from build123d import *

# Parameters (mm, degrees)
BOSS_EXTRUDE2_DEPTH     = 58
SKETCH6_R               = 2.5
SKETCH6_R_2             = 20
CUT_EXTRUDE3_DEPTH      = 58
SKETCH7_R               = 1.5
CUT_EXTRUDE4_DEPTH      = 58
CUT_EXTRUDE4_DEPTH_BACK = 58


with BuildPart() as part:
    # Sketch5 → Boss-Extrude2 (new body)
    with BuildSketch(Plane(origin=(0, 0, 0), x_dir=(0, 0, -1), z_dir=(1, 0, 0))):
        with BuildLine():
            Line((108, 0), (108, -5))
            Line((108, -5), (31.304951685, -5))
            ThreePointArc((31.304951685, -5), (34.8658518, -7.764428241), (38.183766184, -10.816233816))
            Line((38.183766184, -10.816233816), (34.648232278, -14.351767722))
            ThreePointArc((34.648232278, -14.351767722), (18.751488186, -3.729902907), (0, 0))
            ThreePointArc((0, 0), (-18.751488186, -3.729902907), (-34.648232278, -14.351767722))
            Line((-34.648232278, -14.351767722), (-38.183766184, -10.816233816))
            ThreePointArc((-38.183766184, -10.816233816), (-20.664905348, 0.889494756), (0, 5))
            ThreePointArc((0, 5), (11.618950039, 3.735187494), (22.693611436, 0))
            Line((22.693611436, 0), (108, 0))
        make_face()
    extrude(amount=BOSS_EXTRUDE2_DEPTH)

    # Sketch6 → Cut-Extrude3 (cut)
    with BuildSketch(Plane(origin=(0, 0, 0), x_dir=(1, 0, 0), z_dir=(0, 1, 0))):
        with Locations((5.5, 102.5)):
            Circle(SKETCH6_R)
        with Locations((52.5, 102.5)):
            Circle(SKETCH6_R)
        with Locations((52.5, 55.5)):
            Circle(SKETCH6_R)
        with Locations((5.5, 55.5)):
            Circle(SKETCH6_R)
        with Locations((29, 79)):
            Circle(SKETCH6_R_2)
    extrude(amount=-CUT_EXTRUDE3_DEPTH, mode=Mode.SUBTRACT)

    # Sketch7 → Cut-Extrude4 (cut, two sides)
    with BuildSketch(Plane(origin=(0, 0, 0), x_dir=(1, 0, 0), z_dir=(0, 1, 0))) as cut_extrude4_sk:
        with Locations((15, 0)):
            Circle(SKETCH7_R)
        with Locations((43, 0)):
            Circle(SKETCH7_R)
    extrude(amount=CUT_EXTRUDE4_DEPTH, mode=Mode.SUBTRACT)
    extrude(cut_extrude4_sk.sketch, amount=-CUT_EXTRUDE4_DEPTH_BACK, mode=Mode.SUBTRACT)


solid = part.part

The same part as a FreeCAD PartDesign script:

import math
import FreeCAD as App
import Part
import Sketcher
from FreeCAD import Vector

doc = App.newDocument("Part")
body = doc.addObject("PartDesign::Body", "Body")

# Sketch on YZ plane
sketch1 = body.newObject("Sketcher::SketchObject", "Sketch")
sketch1.AttachmentSupport = (doc.getObject("YZ_Plane"), [""])
sketch1.MapMode = "FlatFace"
sketch1.addGeometry([
    Part.LineSegment(Vector(-5, -108, 0), Vector(0, -108, 0)),  # 0
    Part.LineSegment(Vector(0, -108, 0), Vector(0, -23, 0)),  # 1
    Part.ArcOfCircle(Part.Circle(Vector(-49, 0, 0), Vector(0, 0, 1), 54), math.radians(-25), math.radians(0)),  # 2
    Part.ArcOfCircle(Part.Circle(Vector(-49, 0, 0), Vector(0, 0, 1), 54), math.radians(0), math.radians(45)),  # 3
    Part.LineSegment(Vector(-11, 38, 0), Vector(-14, 35, 0)),  # 4
    Part.ArcOfCircle(Part.Circle(Vector(-49, 0, 0), Vector(0, 0, 1), 49), math.radians(0), math.radians(45)),  # 5
    Part.ArcOfCircle(Part.Circle(Vector(-49, 0, 0), Vector(0, 0, 1), 49), math.radians(-45), math.radians(0)),  # 6
    Part.LineSegment(Vector(-14, -35, 0), Vector(-11, -38, 0)),  # 7
    Part.ArcOfCircle(Part.Circle(Vector(-49, 0, 0), Vector(0, 0, 1), 54), math.radians(-45), math.radians(-35.43)),  # 8
    Part.LineSegment(Vector(-5, -31, 0), Vector(-5, -108, 0)),  # 9
], False)
sketch1.addConstraint([
    Sketcher.Constraint("Coincident", 0, 2, 1, 1),
    Sketcher.Constraint("Coincident", 1, 2, 2, 1),
    Sketcher.Constraint("Tangent", 2, 2, 3, 1),
    Sketcher.Constraint("Coincident", 3, 2, 4, 1),
    Sketcher.Constraint("Coincident", 4, 2, 5, 2),
    Sketcher.Constraint("Tangent", 5, 1, 6, 2),
    Sketcher.Constraint("Coincident", 6, 1, 7, 1),
    Sketcher.Constraint("Coincident", 7, 2, 8, 1),
    Sketcher.Constraint("Coincident", 8, 2, 9, 1),
    Sketcher.Constraint("Coincident", 9, 2, 0, 1),
    Sketcher.Constraint("Horizontal", 0),
    Sketcher.Constraint("Vertical", 1),
    Sketcher.Constraint("Vertical", 9),
    Sketcher.Constraint("Coincident", 5, 1, -1, 1),
    Sketcher.Constraint("Coincident", 5, 3, 2, 3),
    Sketcher.Constraint("Coincident", 8, 3, 2, 3),
    Sketcher.Constraint("Equal", 2, 3),
    Sketcher.Constraint("Equal", 5, 6),
    Sketcher.Constraint("Equal", 3, 8),
    Sketcher.Constraint("Symmetric", 4, 2, 6, 1, -1),
    Sketcher.Constraint("PointOnObject", 0, 2, -2),
    Sketcher.Constraint("PointOnObject", 2, 2, -1),
    Sketcher.Constraint("Perpendicular", 4, 7),
    Sketcher.Constraint("Vertical", 3, 2, 7, 2),
    Sketcher.Constraint("Radius", 2, 54.0),
    Sketcher.Constraint("Radius", 5, 49.0),
    Sketcher.Constraint("DistanceX", 0, 1, 0, 2, 5.0),
    Sketcher.Constraint("DistanceY", 0, 2, -1, 1, 108.0),
    Sketcher.Constraint("DistanceY", 6, 1, 1, 2, 11.954621),
])
pad1 = body.newObject("PartDesign::Pad", "Pad")
pad1.Profile = sketch1
pad1.Length = 58

# Sketch on XZ plane
sketch2 = body.newObject("Sketcher::SketchObject", "Sketch001")
sketch2.AttachmentSupport = (doc.getObject("XZ_Plane"), [""])
sketch2.MapMode = "FlatFace"
sketch2.addGeometry([
    Part.Circle(Vector(5.5, -102.5, 0), Vector(0, 0, 1), 2.5),  # 0
    Part.Circle(Vector(52.5, -102.5, 0), Vector(0, 0, 1), 2.5),  # 1
    Part.Circle(Vector(52.5, -55.5, 0), Vector(0, 0, 1), 2.5),  # 2
    Part.Circle(Vector(5.5, -55.5, 0), Vector(0, 0, 1), 2.5),  # 3
    Part.Circle(Vector(29, -79, 0), Vector(0, 0, 1), 20),  # 4
], False)
sketch2.addConstraint([
    Sketcher.Constraint("Equal", 0, 1),
    Sketcher.Constraint("Equal", 1, 2),
    Sketcher.Constraint("Equal", 2, 3),
    Sketcher.Constraint("Horizontal", 0, 3, 1, 3),
    Sketcher.Constraint("Horizontal", 2, 3, 3, 3),
    Sketcher.Constraint("Vertical", 1, 3, 2, 3),
    Sketcher.Constraint("Vertical", 0, 3, 3, 3),
    Sketcher.Constraint("Diameter", 0, 5.0),
    Sketcher.Constraint("Diameter", 4, 40.0),
    Sketcher.Constraint("DistanceX", -1, 1, 4, 3, 29.0),
    Sketcher.Constraint("DistanceY", 4, 3, -1, 1, 79.0),
    Sketcher.Constraint("DistanceX", 0, 3, 1, 3, 47.0),
    Sketcher.Constraint("DistanceY", 1, 3, 2, 3, 47.0),
    Sketcher.Constraint("DistanceX", -1, 1, 0, 3, 5.5),
    Sketcher.Constraint("DistanceY", 0, 3, -1, 1, 102.5),
])
pocket1 = body.newObject("PartDesign::Pocket", "Pocket")
pocket1.Profile = sketch2
pocket1.Length = 58
pocket1.Reversed = True

# Sketch on XZ plane
sketch3 = body.newObject("Sketcher::SketchObject", "Sketch002")
sketch3.AttachmentSupport = (doc.getObject("XZ_Plane"), [""])
sketch3.MapMode = "FlatFace"
sketch3.addGeometry([
    Part.Circle(Vector(15, 0, 0), Vector(0, 0, 1), 1.5),
    Part.Circle(Vector(43, 0, 0), Vector(0, 0, 1), 1.5),
], False)
sketch3.addConstraint([
    Sketcher.Constraint("Equal", 0, 1),
    Sketcher.Constraint("PointOnObject", 0, 3, -1),
    Sketcher.Constraint("PointOnObject", 1, 3, -1),
    Sketcher.Constraint("Diameter", 0, 3.0),
    Sketcher.Constraint("DistanceX", -1, 1, 0, 3, 15.0),
    Sketcher.Constraint("DistanceX", -1, 1, 1, 3, 43.0),
])
pocket2 = body.newObject("PartDesign::Pocket", "Pocket001")
pocket2.Profile = sketch3
pocket2.Type = "ThroughAll"
pocket2.Midplane = True

doc.recompute()
